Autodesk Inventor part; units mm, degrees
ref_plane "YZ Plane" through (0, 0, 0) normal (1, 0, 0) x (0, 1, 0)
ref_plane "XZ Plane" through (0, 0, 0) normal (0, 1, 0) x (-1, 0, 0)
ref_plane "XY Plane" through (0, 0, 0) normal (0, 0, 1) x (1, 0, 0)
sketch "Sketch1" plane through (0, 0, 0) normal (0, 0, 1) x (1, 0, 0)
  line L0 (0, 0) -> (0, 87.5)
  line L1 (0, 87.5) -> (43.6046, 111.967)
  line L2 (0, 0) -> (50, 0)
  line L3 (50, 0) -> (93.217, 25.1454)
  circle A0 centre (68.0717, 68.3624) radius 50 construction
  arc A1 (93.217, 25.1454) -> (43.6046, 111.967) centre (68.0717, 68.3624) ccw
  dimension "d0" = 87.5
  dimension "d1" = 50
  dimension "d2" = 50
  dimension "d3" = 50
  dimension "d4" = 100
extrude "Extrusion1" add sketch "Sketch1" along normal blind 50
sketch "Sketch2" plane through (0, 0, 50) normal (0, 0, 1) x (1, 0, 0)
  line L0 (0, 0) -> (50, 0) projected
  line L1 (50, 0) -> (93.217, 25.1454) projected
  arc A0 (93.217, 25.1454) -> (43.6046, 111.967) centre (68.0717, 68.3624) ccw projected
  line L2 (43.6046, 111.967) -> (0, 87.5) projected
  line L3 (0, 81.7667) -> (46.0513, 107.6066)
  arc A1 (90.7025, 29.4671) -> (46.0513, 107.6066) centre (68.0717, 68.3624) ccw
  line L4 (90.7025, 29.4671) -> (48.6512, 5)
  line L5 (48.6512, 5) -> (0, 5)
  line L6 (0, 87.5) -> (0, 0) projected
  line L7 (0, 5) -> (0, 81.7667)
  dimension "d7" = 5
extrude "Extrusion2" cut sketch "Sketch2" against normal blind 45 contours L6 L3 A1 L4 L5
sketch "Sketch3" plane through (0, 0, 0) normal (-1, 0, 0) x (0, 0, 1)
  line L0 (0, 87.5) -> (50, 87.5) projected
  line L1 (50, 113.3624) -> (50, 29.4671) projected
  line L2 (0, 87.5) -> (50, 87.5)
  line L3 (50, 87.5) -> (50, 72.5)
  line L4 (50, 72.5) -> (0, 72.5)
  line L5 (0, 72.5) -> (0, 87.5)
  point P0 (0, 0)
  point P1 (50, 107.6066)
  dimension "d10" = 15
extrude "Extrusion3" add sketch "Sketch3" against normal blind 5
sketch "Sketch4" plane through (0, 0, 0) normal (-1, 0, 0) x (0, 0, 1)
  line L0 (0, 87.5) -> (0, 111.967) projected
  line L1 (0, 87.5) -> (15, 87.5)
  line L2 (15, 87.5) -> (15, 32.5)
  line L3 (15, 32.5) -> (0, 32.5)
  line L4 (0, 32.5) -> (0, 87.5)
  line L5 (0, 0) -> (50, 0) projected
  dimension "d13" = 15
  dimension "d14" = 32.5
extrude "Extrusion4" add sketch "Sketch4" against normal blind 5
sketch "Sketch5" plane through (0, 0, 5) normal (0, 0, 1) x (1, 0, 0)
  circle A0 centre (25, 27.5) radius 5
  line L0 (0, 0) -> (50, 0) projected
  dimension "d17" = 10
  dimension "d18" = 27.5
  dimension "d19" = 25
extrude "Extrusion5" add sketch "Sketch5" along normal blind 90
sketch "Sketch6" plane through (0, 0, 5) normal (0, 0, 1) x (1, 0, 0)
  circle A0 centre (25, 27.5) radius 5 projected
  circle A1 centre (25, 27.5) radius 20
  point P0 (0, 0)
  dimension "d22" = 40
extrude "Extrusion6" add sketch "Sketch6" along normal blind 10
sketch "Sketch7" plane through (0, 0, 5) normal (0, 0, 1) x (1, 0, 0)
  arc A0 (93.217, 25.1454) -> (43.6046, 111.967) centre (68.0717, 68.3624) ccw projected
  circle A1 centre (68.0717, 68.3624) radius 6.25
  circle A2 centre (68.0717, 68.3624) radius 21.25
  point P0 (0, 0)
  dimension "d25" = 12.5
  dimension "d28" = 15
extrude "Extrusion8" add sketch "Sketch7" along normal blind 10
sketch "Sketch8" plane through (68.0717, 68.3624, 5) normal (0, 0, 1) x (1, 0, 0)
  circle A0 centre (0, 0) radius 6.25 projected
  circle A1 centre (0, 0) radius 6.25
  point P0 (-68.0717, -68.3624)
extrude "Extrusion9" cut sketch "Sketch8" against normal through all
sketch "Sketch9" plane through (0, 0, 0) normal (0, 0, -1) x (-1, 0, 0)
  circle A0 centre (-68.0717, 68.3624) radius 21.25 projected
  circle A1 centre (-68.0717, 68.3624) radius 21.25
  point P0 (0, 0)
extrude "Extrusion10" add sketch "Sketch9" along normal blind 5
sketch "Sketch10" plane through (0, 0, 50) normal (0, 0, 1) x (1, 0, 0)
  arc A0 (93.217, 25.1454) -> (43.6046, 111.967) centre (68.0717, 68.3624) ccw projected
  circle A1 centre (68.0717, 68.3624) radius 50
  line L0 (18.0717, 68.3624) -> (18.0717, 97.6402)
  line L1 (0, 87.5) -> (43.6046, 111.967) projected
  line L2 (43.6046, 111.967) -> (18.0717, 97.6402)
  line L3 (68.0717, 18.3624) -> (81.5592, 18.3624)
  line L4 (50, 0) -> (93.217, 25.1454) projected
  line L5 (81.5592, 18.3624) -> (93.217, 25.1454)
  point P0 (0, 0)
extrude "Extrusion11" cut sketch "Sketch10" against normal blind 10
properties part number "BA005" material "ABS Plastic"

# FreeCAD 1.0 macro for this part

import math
import FreeCAD as App
import Part
import Sketcher


def add_polygon(sketch, points):
    """Adds a closed chain of lines whose ends are joined by coincident constraints."""
    first, n = sketch.GeometryCount, len(points)
    for a, b in zip(points, points[1:] + points[:1]):
        sketch.addGeometry(Part.LineSegment(App.Vector(*a, 0), App.Vector(*b, 0)), False)
    for i in range(n):
        sketch.addConstraint(Sketcher.Constraint("Coincident", first + i, 2, first + (i + 1) % n, 1))

doc = App.newDocument("Part")
body = doc.addObject("PartDesign::Body", "Body")

# Sketch on XY plane
sketch1 = body.newObject("Sketcher::SketchObject", "Sketch")
sketch1.AttachmentSupport = (doc.getObject("XY_Plane"), [""])
sketch1.MapMode = "FlatFace"
sketch1.addGeometry(Part.LineSegment(App.Vector(0, 88, 0), App.Vector(0, 0, 0)), False)
sketch1.addGeometry(Part.LineSegment(App.Vector(0, 0, 0), App.Vector(50, 0, 0)), False)
sketch1.addGeometry(Part.LineSegment(App.Vector(50, 0, 0), App.Vector(93, 25, 0)), False)
sketch1.addGeometry(Part.ArcOfCircle(Part.Circle(App.Vector(68, 68, 0), App.Vector(0, 0, 1), 50), math.radians(-60), math.radians(119)), False)
sketch1.addGeometry(Part.LineSegment(App.Vector(44, 112, 0), App.Vector(0, 88, 0)), False)
sketch1.addConstraint(Sketcher.Constraint("Coincident", 0, 2, 1, 1))
sketch1.addConstraint(Sketcher.Constraint("Coincident", 1, 2, 2, 1))
sketch1.addConstraint(Sketcher.Constraint("Tangent", 2, 2, 3, 1))
sketch1.addConstraint(Sketcher.Constraint("Tangent", 3, 2, 4, 1))
sketch1.addConstraint(Sketcher.Constraint("Coincident", 4, 2, 0, 1))
sketch1.addConstraint(Sketcher.Constraint("Vertical", 0))
sketch1.addConstraint(Sketcher.Constraint("Horizontal", 1))
sketch1.addConstraint(Sketcher.Constraint("Coincident", 0, 2, -1, 1))
sketch1.addConstraint(Sketcher.Constraint("Equal", 2, 4))
sketch1.addConstraint(Sketcher.Constraint("Radius", 3, 50.0))
sketch1.addConstraint(Sketcher.Constraint("DistanceX", 1, 1, 1, 2, 50.0))
sketch1.addConstraint(Sketcher.Constraint("Distance", 2, 50.0))
sketch1.addConstraint(Sketcher.Constraint("DistanceY", 0, 2, 0, 1, 87.5))
pad1 = body.newObject("PartDesign::Pad", "Pad")
pad1.Profile = sketch1
pad1.Length = 50

# Sketch on XY plane
sketch2 = body.newObject("Sketcher::SketchObject", "Sketch001")
sketch2.AttachmentSupport = (doc.getObject("XY_Plane"), [""])
sketch2.MapMode = "FlatFace"
sketch2.AttachmentOffset = App.Placement(App.Vector(0, 0, 50), App.Rotation())
sketch2.addGeometry(Part.LineSegment(App.Vector(0, 82, 0), App.Vector(0, 5, 0)), False)
sketch2.addGeometry(Part.LineSegment(App.Vector(0, 5, 0), App.Vector(49, 5, 0)), False)
sketch2.addGeometry(Part.LineSegment(App.Vector(49, 5, 0), App.Vector(91, 29, 0)), False)
sketch2.addGeometry(Part.ArcOfCircle(Part.Circle(App.Vector(68, 68, 0), App.Vector(0, 0, 1), 45), math.radians(-60), math.radians(119)), False)
sketch2.addGeometry(Part.LineSegment(App.Vector(46, 108, 0), App.Vector(0, 82, 0)), False)
sketch2.addConstraint(Sketcher.Constraint("Coincident", 0, 2, 1, 1))
sketch2.addConstraint(Sketcher.Constraint("Coincident", 1, 2, 2, 1))
sketch2.addConstraint(Sketcher.Constraint("Tangent", 2, 2, 3, 1))
sketch2.addConstraint(Sketcher.Constraint("Tangent", 3, 2, 4, 1))
sketch2.addConstraint(Sketcher.Constraint("Coincident", 4, 2, 0, 1))
sketch2.addConstraint(Sketcher.Constraint("Vertical", 0))
sketch2.addConstraint(Sketcher.Constraint("Horizontal", 1))
sketch2.addConstraint(Sketcher.Constraint("PointOnObject", 0, 2, -2))
sketch2.addConstraint(Sketcher.Constraint("DistanceY", -1, 1, 0, 2, 5.0))
sketch2.addConstraint(Sketcher.Constraint("Radius", 3, 45.0))
sketch2.addConstraint(Sketcher.Constraint("DistanceX", 1, 1, 1, 2, 48.6512))
sketch2.addConstraint(Sketcher.Constraint("DistanceY", 0, 2, 0, 1, 76.7667))
sketch2.addConstraint(Sketcher.Constraint("DistanceY", -1, 1, 2, 2, 29.467))
sketch2.addConstraint(Sketcher.Constraint("Distance", 2, 48.6513))
pocket1 = body.newObject("PartDesign::Pocket", "Pocket")
pocket1.Profile = sketch2
pocket1.Length = 45

# Sketch on YZ plane
sketch3 = body.newObject("Sketcher::SketchObject", "Sketch002")
sketch3.AttachmentSupport = (doc.getObject("YZ_Plane"), [""])
sketch3.MapMode = "FlatFace"
add_polygon(sketch3, [(88, 50), (88, 0), (72, 0), (72, 50)])  # lines 0-3
sketch3.addConstraint(Sketcher.Constraint("Vertical", 0))
sketch3.addConstraint(Sketcher.Constraint("Horizontal", 1))
sketch3.addConstraint(Sketcher.Constraint("Vertical", 2))
sketch3.addConstraint(Sketcher.Constraint("Horizontal", 3))
sketch3.addConstraint(Sketcher.Constraint("PointOnObject", 0, 2, -1))
sketch3.addConstraint(Sketcher.Constraint("DistanceX", 1, 2, 1, 1, 15.0))
sketch3.addConstraint(Sketcher.Constraint("DistanceY", 0, 2, 0, 1, 50.0))
sketch3.addConstraint(Sketcher.Constraint("DistanceX", -1, 1, 0, 2, 87.5))
pad2 = body.newObject("PartDesign::Pad", "Pad001")
pad2.Profile = sketch3
pad2.Length = 5

# Sketch on YZ plane
sketch4 = body.newObject("Sketcher::SketchObject", "Sketch003")
sketch4.AttachmentSupport = (doc.getObject("YZ_Plane"), [""])
sketch4.MapMode = "FlatFace"
add_polygon(sketch4, [(88, 15), (88, 0), (32, 0), (32, 15)])  # lines 0-3
sketch4.addConstraint(Sketcher.Constraint("Vertical", 0))
sketch4.addConstraint(Sketcher.Constraint("Horizontal", 1))
sketch4.addConstraint(Sketcher.Constraint("Vertical", 2))
sketch4.addConstraint(Sketcher.Constraint("Horizontal", 3))
sketch4.addConstraint(Sketcher.Constraint("PointOnObject", 0, 2, -1))
sketch4.addConstraint(Sketcher.Constraint("DistanceY", 0, 2, 0, 1, 15.0))
sketch4.addConstraint(Sketcher.Constraint("DistanceX", -1, 1, 1, 2, 32.5))
sketch4.addConstraint(Sketcher.Constraint("DistanceX", 1, 2, 1, 1, 55.0))
pad3 = body.newObject("PartDesign::Pad", "Pad002")
pad3.Profile = sketch4
pad3.Length = 5

# Sketch on XY plane
sketch5 = body.newObject("Sketcher::SketchObject", "Sketch004")
sketch5.AttachmentSupport = (doc.getObject("XY_Plane"), [""])
sketch5.MapMode = "FlatFace"
sketch5.AttachmentOffset = App.Placement(App.Vector(0, 0, 5), App.Rotation())
sketch5.addGeometry(Part.Circle(App.Vector(25, 28, 0), App.Vector(0, 0, 1), 5), False)
sketch5.addConstraint(Sketcher.Constraint("Diameter", 0, 10.0))
sketch5.addConstraint(Sketcher.Constraint("DistanceX", -1, 1, 0, 3, 25.0))
sketch5.addConstraint(Sketcher.Constraint("DistanceY", -1, 1, 0, 3, 27.5))
pad4 = body.newObject("PartDesign::Pad", "Pad003")
pad4.Profile = sketch5
pad4.Length = 90

# Sketch on XY plane
sketch6 = body.newObject("Sketcher::SketchObject", "Sketch005")
sketch6.AttachmentSupport = (doc.getObject("XY_Plane"), [""])
sketch6.MapMode = "FlatFace"
sketch6.AttachmentOffset = App.Placement(App.Vector(0, 0, 5), App.Rotation())
sketch6.addGeometry(Part.Circle(App.Vector(25, 28, 0), App.Vector(0, 0, 1), 20), False)
sketch6.addGeometry(Part.Circle(App.Vector(25, 28, 0), App.Vector(0, 0, 1), 5), False)
sketch6.addConstraint(Sketcher.Constraint("Coincident", 1, 3, 0, 3))
sketch6.addConstraint(Sketcher.Constraint("Diameter", 0, 40.0))
sketch6.addConstraint(Sketcher.Constraint("Diameter", 1, 10.0))
sketch6.addConstraint(Sketcher.Constraint("DistanceX", -1, 1, 0, 3, 25.0))
sketch6.addConstraint(Sketcher.Constraint("DistanceY", -1, 1, 0, 3, 27.5))
pad5 = body.newObject("PartDesign::Pad", "Pad004")
pad5.Profile = sketch6
pad5.Length = 10

# Sketch on XY plane
sketch7 = body.newObject("Sketcher::SketchObject", "Sketch006")
sketch7.AttachmentSupport = (doc.getObject("XY_Plane"), [""])
sketch7.MapMode = "FlatFace"
sketch7.AttachmentOffset = App.Placement(App.Vector(0, 0, 5), App.Rotation())
sketch7.addGeometry(Part.Circle(App.Vector(68, 68, 0), App.Vector(0, 0, 1), 21), False)
sketch7.addGeometry(Part.Circle(App.Vector(68, 68, 0), App.Vector(0, 0, 1), 6), False)
sketch7.addConstraint(Sketcher.Constraint("Coincident", 1, 3, 0, 3))
sketch7.addConstraint(Sketcher.Constraint("Diameter", 1, 12.5))
sketch7.addConstraint(Sketcher.Constraint("Diameter", 0, 42.5))
sketch7.addConstraint(Sketcher.Constraint("DistanceX", -1, 1, 0, 3, 68.0717))
sketch7.addConstraint(Sketcher.Constraint("DistanceY", -1, 1, 0, 3, 68.3624))
pad6 = body.newObject("PartDesign::Pad", "Pad005")
pad6.Profile = sketch7
pad6.Length = 10

# Sketch on XY plane
sketch8 = body.newObject("Sketcher::SketchObject", "Sketch007")
sketch8.AttachmentSupport = (doc.getObject("XY_Plane"), [""])
sketch8.MapMode = "FlatFace"
sketch8.AttachmentOffset = App.Placement(App.Vector(0, 0, 5), App.Rotation())
sketch8.addGeometry(Part.Circle(App.Vector(68, 68, 0), App.Vector(0, 0, 1), 6), False)
sketch8.addConstraint(Sketcher.Constraint("Diameter", 0, 12.5))
sketch8.addConstraint(Sketcher.Constraint("DistanceX", -1, 1, 0, 3, 68.0717))
sketch8.addConstraint(Sketcher.Constraint("DistanceY", -1, 1, 0, 3, 68.3624))
pocket2 = body.newObject("PartDesign::Pocket", "Pocket001")
pocket2.Profile = sketch8
pocket2.Type = "ThroughAll"

# Sketch on XY plane
sketch9 = body.newObject("Sketcher::SketchObject", "Sketch008")
sketch9.AttachmentSupport = (doc.getObject("XY_Plane"), [""])
sketch9.MapMode = "FlatFace"
sketch9.addGeometry(Part.Circle(App.Vector(68, 68, 0), App.Vector(0, 0, 1), 21), False)
sketch9.addConstraint(Sketcher.Constraint("Diameter", 0, 42.5))
sketch9.addConstraint(Sketcher.Constraint("DistanceX", -1, 1, 0, 3, 68.0717))
sketch9.addConstraint(Sketcher.Constraint("DistanceY", -1, 1, 0, 3, 68.3624))
pad7 = body.newObject("PartDesign::Pad", "Pad006")
pad7.Profile = sketch9
pad7.Length = 5
pad7.Reversed = True

# Sketch on XY plane
sketch10 = body.newObject("Sketcher::SketchObject", "Sketch009")
sketch10.AttachmentSupport = (doc.getObject("XY_Plane"), [""])
sketch10.MapMode = "FlatFace"
sketch10.AttachmentOffset = App.Placement(App.Vector(0, 0, 50), App.Rotation())
sketch10.addGeometry(Part.ArcOfCircle(Part.Circle(App.Vector(68, 68, 0), App.Vector(0, 0, 1), 50), math.radians(180), math.radians(270)), False)
sketch10.addGeometry(Part.LineSegment(App.Vector(68, 18, 0), App.Vector(82, 18, 0)), False)
sketch10.addGeometry(Part.LineSegment(App.Vector(82, 18, 0), App.Vector(93, 25, 0)), False)
sketch10.addGeometry(Part.ArcOfCircle(Part.Circle(App.Vector(68, 68, 0), App.Vector(0, 0, 1), 50), math.radians(-60), math.radians(119)), False)
sketch10.addGeometry(Part.LineSegment(App.Vector(44, 112, 0), App.Vector(18, 98, 0)), False)
sketch10.addGeometry(Part.LineSegment(App.Vector(18, 98, 0), App.Vector(18, 68, 0)), False)
sketch10.addConstraint(Sketcher.Constraint("Tangent", 0, 2, 1, 1))
sketch10.addConstraint(Sketcher.Constraint("Coincident", 1, 2, 2, 1))
sketch10.addConstraint(Sketcher.Constraint("Tangent", 2, 2, 3, 1))
sketch10.addConstraint(Sketcher.Constraint("Tangent", 3, 2, 4, 1))
sketch10.addConstraint(Sketcher.Constraint("Coincident", 4, 2, 5, 1))
sketch10.addConstraint(Sketcher.Constraint("Tangent", 5, 2, 0, 1))
sketch10.addConstraint(Sketcher.Constraint("Horizontal", 1))
sketch10.addConstraint(Sketcher.Constraint("Vertical", 5))
sketch10.addConstraint(Sketcher.Constraint("Coincident", 3, 3, 0, 3))
sketch10.addConstraint(Sketcher.Constraint("Equal", 0, 3))
sketch10.addConstraint(Sketcher.Constraint("Radius", 0, 50.0))
sketch10.addConstraint(Sketcher.Constraint("DistanceX", 1, 1, 1, 2, 13.4875))
sketch10.addConstraint(Sketcher.Constraint("DistanceY", 5, 2, 5, 1, 29.2778))
sketch10.addConstraint(Sketcher.Constraint("DistanceX", -1, 1, 2, 2, 93.217))
sketch10.addConstraint(Sketcher.Constraint("DistanceY", -1, 1, 3, 2, 111.967))
pocket3 = body.newObject("PartDesign::Pocket", "Pocket002")
pocket3.Profile = sketch10
pocket3.Length = 10

doc.recompute()
